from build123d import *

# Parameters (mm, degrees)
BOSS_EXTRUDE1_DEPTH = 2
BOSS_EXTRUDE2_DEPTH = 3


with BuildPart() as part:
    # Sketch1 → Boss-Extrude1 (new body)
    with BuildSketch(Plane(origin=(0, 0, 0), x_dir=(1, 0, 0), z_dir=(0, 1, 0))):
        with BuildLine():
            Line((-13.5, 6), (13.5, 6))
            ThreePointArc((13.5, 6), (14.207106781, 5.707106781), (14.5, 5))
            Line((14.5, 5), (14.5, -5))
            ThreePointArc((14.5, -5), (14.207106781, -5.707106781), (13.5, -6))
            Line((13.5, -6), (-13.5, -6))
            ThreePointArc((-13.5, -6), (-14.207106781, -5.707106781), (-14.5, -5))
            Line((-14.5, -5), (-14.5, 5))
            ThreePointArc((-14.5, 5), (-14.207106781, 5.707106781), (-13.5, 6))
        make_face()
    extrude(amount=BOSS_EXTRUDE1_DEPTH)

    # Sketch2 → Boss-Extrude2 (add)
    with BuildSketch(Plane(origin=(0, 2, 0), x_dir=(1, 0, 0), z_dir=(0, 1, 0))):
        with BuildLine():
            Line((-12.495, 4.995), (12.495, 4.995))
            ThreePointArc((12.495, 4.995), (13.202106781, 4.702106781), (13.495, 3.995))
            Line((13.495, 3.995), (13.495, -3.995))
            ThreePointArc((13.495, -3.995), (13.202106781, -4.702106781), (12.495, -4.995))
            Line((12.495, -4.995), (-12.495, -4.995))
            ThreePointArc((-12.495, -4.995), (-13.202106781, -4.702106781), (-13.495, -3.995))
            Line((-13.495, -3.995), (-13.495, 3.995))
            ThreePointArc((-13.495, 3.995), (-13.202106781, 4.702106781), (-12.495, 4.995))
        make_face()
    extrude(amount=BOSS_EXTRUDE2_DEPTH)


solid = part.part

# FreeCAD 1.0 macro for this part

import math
import FreeCAD as App
import Part
import Sketcher
from FreeCAD import Vector
Q = App.Units.Quantity

doc = App.newDocument("Part")
body = doc.addObject("PartDesign::Body", "Body")

# Sketch on XZ plane
sketch1 = body.newObject("Sketcher::SketchObject", "Sketch")
sketch1.AttachmentSupport = (doc.getObject("XZ_Plane"), [""])
sketch1.MapMode = "FlatFace"
sketch1.addGeometry(Part.LineSegment(Vector(13.5, -6, 0), Vector(-13.5, -6, 0)), False)
sketch1.addGeometry(Part.ArcOfCircle(Part.Circle(Vector(-13.5, -5, 0), Vector(0, 0, 1), 1), math.radians(-180), math.radians(-90)), False)
sketch1.addGeometry(Part.LineSegment(Vector(-14.5, -5, 0), Vector(-14.5, 5, 0)), False)
sketch1.addGeometry(Part.ArcOfCircle(Part.Circle(Vector(-13.5, 5, 0), Vector(0, 0, 1), 1), math.radians(90), math.radians(180)), False)
sketch1.addGeometry(Part.LineSegment(Vector(-13.5, 6, 0), Vector(13.5, 6, 0)), False)
sketch1.addGeometry(Part.ArcOfCircle(Part.Circle(Vector(13.5, 5, 0), Vector(0, 0, 1), 1), math.radians(0), math.radians(90)), False)
sketch1.addGeometry(Part.LineSegment(Vector(14.5, 5, 0), Vector(14.5, -5, 0)), False)
sketch1.addGeometry(Part.ArcOfCircle(Part.Circle(Vector(13.5, -5, 0), Vector(0, 0, 1), 1), math.radians(-90), math.radians(0)), False)
sketch1.addConstraint(Sketcher.Constraint("Tangent", 0, 2, 1, 2))
sketch1.addConstraint(Sketcher.Constraint("Tangent", 1, 1, 2, 1))
sketch1.addConstraint(Sketcher.Constraint("Tangent", 2, 2, 3, 2))
sketch1.addConstraint(Sketcher.Constraint("Tangent", 3, 1, 4, 1))
sketch1.addConstraint(Sketcher.Constraint("Tangent", 4, 2, 5, 2))
sketch1.addConstraint(Sketcher.Constraint("Tangent", 5, 1, 6, 1))
sketch1.addConstraint(Sketcher.Constraint("Tangent", 6, 2, 7, 2))
sketch1.addConstraint(Sketcher.Constraint("Tangent", 7, 1, 0, 1))
sketch1.addConstraint(Sketcher.Constraint("Horizontal", 0))
sketch1.addConstraint(Sketcher.Constraint("Vertical", 2))
sketch1.addConstraint(Sketcher.Constraint("Horizontal", 4))
sketch1.addConstraint(Sketcher.Constraint("Vertical", 6))
sketch1.addConstraint(Sketcher.Constraint("Equal", 1, 3))
sketch1.addConstraint(Sketcher.Constraint("Equal", 3, 5))
sketch1.addConstraint(Sketcher.Constraint("Equal", 5, 7))
sketch1.addConstraint(Sketcher.Constraint("Symmetric", 1, 3, 5, 3, -1, 1))
sketch1.addConstraint(Sketcher.Constraint("Radius", 1, Q("1 mm")))
sketch1.addConstraint(Sketcher.Constraint("DistanceX", 0, 2, 0, 1, Q("27 mm")))
sketch1.addConstraint(Sketcher.Constraint("DistanceY", 2, 1, 2, 2, Q("10 mm")))
pad1 = body.newObject("PartDesign::Pad", "Pad")
pad1.Profile = sketch1
pad1.Length = 2
pad1.Reversed = True

# Sketch on XZ plane
sketch2 = body.newObject("Sketcher::SketchObject", "Sketch001")
sketch2.AttachmentSupport = (doc.getObject("XZ_Plane"), [""])
sketch2.MapMode = "FlatFace"
sketch2.AttachmentOffset = App.Placement(Vector(0, 0, -2), App.Rotation())
sketch2.addGeometry(Part.LineSegment(Vector(12.5, -5, 0), Vector(-12.5, -5, 0)), False)
sketch2.addGeometry(Part.ArcOfCircle(Part.Circle(Vector(-12.5, -4, 0), Vector(0, 0, 1), 1), math.radians(-180), math.radians(-90)), False)
sketch2.addGeometry(Part.LineSegment(Vector(-13.5, -4, 0), Vector(-13.5, 4, 0)), False)
sketch2.addGeometry(Part.ArcOfCircle(Part.Circle(Vector(-12.5, 4, 0), Vector(0, 0, 1), 1), math.radians(90), math.radians(180)), False)
sketch2.addGeometry(Part.LineSegment(Vector(-12.5, 5, 0), Vector(12.5, 5, 0)), False)
sketch2.addGeometry(Part.ArcOfCircle(Part.Circle(Vector(12.5, 4, 0), Vector(0, 0, 1), 1), math.radians(0), math.radians(90)), False)
sketch2.addGeometry(Part.LineSegment(Vector(13.5, 4, 0), Vector(13.5, -4, 0)), False)
sketch2.addGeometry(Part.ArcOfCircle(Part.Circle(Vector(12.5, -4, 0), Vector(0, 0, 1), 1), math.radians(-90), math.radians(0)), False)
sketch2.addConstraint(Sketcher.Constraint("Tangent", 0, 2, 1, 2))
sketch2.addConstraint(Sketcher.Constraint("Tangent", 1, 1, 2, 1))
sketch2.addConstraint(Sketcher.Constraint("Tangent", 2, 2, 3, 2))
sketch2.addConstraint(Sketcher.Constraint("Tangent", 3, 1, 4, 1))
sketch2.addConstraint(Sketcher.Constraint("Tangent", 4, 2, 5, 2))
sketch2.addConstraint(Sketcher.Constraint("Tangent", 5, 1, 6, 1))
sketch2.addConstraint(Sketcher.Constraint("Tangent", 6, 2, 7, 2))
sketch2.addConstraint(Sketcher.Constraint("Tangent", 7, 1, 0, 1))
sketch2.addConstraint(Sketcher.Constraint("Horizontal", 0))
sketch2.addConstraint(Sketcher.Constraint("Vertical", 2))
sketch2.addConstraint(Sketcher.Constraint("Horizontal", 4))
sketch2.addConstraint(Sketcher.Constraint("Vertical", 6))
sketch2.addConstraint(Sketcher.Constraint("Equal", 1, 3))
sketch2.addConstraint(Sketcher.Constraint("Equal", 3, 5))
sketch2.addConstraint(Sketcher.Constraint("Equal", 5, 7))
sketch2.addConstraint(Sketcher.Constraint("Symmetric", 1, 3, 5, 3, -1, 1))
sketch2.addConstraint(Sketcher.Constraint("Radius", 1, Q("1 mm")))
sketch2.addConstraint(Sketcher.Constraint("DistanceX", 0, 2, 0, 1, Q("24.99 mm")))
sketch2.addConstraint(Sketcher.Constraint("DistanceY", 2, 1, 2, 2, Q("7.99 mm")))
pad2 = body.newObject("PartDesign::Pad", "Pad001")
pad2.Profile = sketch2
pad2.Length = 3
pad2.Reversed = True

doc.recompute()
